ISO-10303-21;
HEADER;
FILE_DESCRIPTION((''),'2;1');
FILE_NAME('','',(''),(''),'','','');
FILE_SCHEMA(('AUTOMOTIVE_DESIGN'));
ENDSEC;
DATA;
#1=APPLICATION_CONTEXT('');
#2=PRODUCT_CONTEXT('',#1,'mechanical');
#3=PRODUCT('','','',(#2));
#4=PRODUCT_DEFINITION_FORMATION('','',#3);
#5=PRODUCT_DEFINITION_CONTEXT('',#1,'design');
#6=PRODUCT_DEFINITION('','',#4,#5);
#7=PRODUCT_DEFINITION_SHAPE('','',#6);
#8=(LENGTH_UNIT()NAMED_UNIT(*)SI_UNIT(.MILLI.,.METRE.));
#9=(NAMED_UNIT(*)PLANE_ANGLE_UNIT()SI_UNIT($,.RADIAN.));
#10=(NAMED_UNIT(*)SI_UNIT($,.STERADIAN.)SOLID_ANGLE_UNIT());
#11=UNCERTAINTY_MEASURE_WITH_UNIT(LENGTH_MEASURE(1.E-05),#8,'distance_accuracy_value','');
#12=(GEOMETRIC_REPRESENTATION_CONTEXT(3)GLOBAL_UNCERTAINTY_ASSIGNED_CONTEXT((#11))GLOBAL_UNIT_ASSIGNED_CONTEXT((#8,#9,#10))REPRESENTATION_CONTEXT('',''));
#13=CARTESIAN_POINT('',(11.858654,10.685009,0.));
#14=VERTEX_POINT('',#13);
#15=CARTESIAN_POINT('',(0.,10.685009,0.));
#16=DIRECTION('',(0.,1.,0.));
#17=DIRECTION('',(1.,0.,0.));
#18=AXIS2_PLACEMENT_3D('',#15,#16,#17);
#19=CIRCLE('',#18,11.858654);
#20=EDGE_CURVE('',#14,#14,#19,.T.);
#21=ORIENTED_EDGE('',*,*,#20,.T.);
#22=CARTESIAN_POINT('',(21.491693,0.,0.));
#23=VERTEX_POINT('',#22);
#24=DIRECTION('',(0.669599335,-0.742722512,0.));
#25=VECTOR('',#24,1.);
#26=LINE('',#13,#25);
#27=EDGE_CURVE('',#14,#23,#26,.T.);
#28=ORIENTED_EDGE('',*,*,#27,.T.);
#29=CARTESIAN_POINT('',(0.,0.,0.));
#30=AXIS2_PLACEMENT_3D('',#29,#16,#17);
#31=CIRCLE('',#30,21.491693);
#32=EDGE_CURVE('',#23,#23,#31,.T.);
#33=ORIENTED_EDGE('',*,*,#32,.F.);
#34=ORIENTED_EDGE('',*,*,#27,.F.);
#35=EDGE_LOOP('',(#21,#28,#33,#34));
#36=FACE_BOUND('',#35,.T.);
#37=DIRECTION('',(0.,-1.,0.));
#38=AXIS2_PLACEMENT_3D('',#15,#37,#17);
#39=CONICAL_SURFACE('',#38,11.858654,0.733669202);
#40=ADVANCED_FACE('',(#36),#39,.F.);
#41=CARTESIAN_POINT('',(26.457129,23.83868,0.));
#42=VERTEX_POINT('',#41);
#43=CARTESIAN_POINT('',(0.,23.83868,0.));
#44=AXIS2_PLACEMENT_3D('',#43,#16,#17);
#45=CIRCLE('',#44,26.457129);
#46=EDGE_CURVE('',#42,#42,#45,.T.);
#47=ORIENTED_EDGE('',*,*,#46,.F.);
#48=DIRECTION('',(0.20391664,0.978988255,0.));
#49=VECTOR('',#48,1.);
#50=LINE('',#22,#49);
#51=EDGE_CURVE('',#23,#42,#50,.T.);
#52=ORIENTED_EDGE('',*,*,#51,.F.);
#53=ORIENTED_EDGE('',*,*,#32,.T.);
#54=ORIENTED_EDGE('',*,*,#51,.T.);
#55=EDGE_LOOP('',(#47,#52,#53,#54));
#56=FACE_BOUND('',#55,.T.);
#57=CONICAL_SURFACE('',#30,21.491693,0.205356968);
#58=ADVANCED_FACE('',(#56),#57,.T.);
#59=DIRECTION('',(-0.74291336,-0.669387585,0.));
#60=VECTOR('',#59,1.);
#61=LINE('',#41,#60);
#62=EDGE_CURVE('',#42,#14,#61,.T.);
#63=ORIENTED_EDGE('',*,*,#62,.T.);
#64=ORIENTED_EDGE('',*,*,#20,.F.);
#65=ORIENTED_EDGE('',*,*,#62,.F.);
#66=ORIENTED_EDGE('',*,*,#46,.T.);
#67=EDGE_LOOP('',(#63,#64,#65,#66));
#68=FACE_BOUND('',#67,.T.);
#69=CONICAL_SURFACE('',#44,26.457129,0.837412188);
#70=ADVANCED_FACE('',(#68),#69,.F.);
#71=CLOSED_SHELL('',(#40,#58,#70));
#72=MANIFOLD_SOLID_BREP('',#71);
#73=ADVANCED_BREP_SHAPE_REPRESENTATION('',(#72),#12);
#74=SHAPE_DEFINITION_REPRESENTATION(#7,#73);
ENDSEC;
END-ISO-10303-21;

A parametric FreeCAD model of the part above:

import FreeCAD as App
import Part
import Sketcher
from FreeCAD import Vector


def add_polygon(sketch, points):
    """Adds a closed chain of lines whose ends are joined by coincident constraints."""
    first, n = sketch.GeometryCount, len(points)
    for a, b in zip(points, points[1:] + points[:1]):
        sketch.addGeometry(Part.LineSegment(App.Vector(*a, 0), App.Vector(*b, 0)), False)
    for i in range(n):
        sketch.addConstraint(Sketcher.Constraint("Coincident", first + i, 2, first + (i + 1) % n, 1))

doc = App.newDocument("Part")
params = doc.addObject("Spreadsheet::Sheet", "Params")
for row, (alias, value) in enumerate([
    ("revolution_angle", "360 deg"),
], start=1):
    params.set(f"A{row}", alias)
    params.set(f"B{row}", "=" + value)
    params.setAlias(f"B{row}", alias)

body = doc.addObject("PartDesign::Body", "Body")

# Sketch on XY plane
sketch1 = doc.addObject("Sketcher::SketchObject", "Sketch")
body.addObject(sketch1)
sketch1.AttachmentSupport = (doc.XY_Plane, [""])
sketch1.MapMode = "FlatFace"
add_polygon(sketch1, [(26, 24), (12, 11), (21, 0)])  # lines 0-2
sketch1.addConstraint([
    Sketcher.Constraint("PointOnObject", 1, 2, -1),
    Sketcher.Constraint("DistanceY", -1, 1, 0, 2, 10.685009),
    Sketcher.Constraint("DistanceX", -1, 1, 2, 2, 26.457129),
    Sketcher.Constraint("DistanceY", -1, 1, 2, 2, 23.83868),
    Sketcher.Constraint("DistanceX", 0, 2, 1, 2, 9.633039),
    Sketcher.Constraint("Distance", 0, 19.650306),
])
revolution = doc.addObject("PartDesign::Revolution", "Revolution")
body.addObject(revolution)
revolution.Profile = sketch1
revolution.ReferenceAxis = (sketch1, ["V_Axis"])
revolution.setExpression("Angle", "Params.revolution_angle")

doc.recompute()
